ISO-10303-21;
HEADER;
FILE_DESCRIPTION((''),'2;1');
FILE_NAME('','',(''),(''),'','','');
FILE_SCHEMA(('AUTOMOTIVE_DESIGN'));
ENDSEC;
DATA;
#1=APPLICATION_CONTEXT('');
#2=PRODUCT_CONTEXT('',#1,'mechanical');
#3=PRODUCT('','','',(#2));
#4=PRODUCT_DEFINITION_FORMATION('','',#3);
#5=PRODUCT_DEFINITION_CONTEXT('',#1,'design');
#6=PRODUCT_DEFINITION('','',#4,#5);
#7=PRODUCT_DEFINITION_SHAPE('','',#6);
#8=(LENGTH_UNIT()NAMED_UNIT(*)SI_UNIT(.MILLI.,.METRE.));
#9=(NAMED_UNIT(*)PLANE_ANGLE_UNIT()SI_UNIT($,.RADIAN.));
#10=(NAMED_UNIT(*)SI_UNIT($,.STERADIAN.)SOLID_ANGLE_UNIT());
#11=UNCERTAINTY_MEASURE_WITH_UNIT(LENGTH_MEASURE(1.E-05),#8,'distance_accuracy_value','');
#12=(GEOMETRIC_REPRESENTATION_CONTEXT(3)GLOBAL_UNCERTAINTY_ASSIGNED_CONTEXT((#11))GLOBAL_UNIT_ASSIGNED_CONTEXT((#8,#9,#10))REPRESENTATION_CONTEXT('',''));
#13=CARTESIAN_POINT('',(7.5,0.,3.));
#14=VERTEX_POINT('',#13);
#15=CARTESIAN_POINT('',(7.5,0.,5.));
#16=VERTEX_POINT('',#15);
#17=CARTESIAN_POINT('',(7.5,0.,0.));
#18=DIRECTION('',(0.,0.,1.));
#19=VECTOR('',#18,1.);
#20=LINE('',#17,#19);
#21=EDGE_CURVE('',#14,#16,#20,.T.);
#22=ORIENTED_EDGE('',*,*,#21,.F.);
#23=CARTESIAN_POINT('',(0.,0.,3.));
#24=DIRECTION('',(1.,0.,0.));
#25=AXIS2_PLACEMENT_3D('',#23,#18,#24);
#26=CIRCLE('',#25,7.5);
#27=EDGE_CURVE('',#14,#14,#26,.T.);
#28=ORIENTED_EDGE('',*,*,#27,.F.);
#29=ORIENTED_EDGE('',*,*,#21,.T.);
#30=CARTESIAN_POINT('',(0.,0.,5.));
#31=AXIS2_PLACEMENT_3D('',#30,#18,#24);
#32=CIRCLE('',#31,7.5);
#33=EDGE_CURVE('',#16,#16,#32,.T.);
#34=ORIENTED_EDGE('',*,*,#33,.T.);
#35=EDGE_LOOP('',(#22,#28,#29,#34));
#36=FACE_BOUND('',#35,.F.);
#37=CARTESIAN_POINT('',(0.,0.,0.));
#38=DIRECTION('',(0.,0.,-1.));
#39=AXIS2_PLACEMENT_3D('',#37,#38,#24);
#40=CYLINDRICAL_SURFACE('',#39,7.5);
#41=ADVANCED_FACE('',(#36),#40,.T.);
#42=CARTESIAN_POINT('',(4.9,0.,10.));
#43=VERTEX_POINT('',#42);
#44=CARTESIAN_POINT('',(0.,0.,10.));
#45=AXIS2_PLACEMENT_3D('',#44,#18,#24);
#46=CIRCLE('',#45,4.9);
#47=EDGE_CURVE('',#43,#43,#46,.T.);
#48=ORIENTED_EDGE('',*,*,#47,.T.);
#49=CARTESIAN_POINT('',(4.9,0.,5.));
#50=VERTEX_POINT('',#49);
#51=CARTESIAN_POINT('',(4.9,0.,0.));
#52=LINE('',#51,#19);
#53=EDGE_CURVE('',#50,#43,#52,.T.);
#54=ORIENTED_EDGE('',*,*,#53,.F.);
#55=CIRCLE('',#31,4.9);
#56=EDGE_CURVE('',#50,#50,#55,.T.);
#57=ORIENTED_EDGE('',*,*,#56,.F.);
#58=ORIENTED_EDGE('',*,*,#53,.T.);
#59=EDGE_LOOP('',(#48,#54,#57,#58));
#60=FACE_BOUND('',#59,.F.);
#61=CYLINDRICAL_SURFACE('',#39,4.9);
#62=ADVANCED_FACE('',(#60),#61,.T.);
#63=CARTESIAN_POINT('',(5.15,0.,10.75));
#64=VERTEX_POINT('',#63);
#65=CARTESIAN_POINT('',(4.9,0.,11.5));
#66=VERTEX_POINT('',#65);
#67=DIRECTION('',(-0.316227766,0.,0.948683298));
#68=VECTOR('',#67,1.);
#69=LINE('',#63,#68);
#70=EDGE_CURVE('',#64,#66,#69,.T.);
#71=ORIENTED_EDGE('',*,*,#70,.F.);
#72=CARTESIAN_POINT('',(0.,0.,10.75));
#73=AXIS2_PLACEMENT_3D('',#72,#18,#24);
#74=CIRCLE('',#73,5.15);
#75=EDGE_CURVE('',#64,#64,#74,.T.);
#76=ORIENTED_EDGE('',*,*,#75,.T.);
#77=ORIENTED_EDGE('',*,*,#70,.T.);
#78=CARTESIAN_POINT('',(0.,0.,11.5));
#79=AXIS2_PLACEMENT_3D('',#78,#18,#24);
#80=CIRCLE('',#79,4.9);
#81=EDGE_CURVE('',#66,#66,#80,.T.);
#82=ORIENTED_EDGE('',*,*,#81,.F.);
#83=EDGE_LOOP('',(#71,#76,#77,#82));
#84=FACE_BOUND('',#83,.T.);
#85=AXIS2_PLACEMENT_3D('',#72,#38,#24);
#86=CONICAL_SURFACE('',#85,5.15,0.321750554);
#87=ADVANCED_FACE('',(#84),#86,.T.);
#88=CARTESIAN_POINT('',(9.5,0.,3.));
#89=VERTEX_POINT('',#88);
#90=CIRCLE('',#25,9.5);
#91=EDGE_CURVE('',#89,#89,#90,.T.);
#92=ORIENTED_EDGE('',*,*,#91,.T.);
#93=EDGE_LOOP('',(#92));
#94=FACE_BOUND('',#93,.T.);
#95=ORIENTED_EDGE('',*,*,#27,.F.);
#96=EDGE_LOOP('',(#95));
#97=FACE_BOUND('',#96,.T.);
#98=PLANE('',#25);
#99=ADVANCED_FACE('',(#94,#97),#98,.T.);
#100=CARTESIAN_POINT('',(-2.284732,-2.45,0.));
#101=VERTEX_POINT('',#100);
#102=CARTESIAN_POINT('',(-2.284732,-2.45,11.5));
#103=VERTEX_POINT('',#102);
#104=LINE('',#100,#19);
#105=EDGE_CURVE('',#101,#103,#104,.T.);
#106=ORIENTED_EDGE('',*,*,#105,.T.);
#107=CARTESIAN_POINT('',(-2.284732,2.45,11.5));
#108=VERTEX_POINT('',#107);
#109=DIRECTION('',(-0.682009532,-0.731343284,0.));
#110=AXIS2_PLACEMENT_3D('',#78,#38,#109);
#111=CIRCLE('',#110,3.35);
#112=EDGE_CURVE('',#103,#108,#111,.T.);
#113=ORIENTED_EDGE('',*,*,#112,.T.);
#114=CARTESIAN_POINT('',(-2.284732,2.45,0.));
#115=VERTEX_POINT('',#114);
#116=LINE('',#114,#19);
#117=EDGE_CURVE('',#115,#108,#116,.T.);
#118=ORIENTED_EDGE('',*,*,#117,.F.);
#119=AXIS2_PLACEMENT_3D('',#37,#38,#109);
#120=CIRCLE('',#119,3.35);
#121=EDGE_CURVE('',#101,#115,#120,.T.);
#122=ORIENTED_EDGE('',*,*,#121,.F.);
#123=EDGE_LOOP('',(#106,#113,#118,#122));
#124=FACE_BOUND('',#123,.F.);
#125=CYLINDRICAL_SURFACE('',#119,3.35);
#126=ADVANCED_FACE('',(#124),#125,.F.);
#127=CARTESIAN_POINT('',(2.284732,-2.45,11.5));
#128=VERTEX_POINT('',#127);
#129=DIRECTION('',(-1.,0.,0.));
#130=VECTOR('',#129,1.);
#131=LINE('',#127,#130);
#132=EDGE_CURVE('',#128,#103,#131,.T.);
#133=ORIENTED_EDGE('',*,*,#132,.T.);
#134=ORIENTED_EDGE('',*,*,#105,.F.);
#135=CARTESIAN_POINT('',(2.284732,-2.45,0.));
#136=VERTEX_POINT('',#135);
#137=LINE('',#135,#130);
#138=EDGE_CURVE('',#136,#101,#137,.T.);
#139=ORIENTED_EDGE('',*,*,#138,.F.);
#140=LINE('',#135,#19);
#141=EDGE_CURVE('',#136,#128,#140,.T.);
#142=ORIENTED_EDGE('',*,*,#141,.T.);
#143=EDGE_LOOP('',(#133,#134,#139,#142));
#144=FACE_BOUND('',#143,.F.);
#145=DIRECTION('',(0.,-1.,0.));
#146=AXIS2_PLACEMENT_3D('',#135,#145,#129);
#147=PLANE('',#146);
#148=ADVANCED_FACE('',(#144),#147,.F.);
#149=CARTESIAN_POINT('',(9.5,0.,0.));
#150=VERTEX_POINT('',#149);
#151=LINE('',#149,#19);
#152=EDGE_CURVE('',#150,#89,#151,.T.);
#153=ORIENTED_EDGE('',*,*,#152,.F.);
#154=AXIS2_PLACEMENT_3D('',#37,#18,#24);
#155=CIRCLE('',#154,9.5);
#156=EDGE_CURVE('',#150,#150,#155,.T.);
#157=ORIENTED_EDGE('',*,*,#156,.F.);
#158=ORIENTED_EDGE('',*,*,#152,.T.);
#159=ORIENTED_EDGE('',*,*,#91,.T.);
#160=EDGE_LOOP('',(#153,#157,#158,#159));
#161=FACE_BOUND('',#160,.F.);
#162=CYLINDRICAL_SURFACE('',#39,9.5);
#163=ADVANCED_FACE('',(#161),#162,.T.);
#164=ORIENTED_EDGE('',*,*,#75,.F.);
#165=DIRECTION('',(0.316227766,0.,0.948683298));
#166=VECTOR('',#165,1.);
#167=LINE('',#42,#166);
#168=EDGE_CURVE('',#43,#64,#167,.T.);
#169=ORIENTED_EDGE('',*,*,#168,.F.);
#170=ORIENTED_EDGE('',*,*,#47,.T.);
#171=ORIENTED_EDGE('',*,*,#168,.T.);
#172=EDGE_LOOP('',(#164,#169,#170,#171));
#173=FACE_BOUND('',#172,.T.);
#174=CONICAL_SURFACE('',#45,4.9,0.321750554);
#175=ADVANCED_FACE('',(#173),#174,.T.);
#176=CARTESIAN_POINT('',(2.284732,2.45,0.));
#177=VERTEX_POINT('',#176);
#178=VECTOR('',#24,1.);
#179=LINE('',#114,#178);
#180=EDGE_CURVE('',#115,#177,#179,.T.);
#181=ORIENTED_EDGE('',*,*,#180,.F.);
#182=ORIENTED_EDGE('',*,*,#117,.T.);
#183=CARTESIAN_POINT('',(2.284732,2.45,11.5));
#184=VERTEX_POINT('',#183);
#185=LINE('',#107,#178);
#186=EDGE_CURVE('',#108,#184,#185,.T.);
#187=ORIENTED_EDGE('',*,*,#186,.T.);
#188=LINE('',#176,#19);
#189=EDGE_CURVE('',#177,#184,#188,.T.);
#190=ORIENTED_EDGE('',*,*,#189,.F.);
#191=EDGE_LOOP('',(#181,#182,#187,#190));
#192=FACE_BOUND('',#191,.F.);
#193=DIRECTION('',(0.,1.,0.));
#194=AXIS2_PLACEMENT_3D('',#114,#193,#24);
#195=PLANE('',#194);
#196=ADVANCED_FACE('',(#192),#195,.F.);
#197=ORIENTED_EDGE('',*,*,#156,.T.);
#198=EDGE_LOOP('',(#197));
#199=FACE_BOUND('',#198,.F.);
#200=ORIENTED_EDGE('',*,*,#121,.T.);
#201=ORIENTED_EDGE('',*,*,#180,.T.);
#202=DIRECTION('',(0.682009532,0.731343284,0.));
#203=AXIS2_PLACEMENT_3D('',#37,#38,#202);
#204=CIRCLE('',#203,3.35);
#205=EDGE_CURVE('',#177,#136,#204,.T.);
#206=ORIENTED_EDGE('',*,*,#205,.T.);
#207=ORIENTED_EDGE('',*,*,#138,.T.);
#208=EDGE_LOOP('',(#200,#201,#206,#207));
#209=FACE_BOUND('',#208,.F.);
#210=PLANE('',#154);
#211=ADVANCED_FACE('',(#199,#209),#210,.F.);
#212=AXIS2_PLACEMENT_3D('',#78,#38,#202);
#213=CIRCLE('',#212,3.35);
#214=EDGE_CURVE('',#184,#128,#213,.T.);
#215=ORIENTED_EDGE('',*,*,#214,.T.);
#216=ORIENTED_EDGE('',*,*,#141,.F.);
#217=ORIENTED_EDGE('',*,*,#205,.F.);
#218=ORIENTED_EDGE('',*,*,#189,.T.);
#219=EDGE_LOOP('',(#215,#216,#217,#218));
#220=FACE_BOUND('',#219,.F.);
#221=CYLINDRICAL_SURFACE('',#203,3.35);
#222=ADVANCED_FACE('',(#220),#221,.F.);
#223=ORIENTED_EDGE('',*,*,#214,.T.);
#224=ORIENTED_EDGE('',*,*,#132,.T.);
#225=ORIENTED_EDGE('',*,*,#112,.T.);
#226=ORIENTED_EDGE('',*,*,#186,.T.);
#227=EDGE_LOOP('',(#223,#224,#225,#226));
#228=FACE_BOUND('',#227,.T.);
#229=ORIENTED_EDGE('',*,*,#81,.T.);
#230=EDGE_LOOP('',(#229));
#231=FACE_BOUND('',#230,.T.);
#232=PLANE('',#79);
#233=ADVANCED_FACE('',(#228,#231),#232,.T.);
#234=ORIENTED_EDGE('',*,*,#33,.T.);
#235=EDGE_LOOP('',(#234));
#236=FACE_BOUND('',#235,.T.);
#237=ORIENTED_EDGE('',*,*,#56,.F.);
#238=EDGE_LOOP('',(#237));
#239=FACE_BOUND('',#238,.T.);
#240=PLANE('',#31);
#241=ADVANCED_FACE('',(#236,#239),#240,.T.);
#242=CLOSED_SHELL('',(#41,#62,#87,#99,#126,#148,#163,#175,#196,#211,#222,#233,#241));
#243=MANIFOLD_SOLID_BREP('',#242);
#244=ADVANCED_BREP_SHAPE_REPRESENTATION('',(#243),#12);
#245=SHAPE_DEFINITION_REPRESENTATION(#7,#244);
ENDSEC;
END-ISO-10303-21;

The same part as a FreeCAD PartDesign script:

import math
import FreeCAD as App
import Part
import Sketcher
Q = App.Units.Quantity


def add_polygon(sketch, points):
    """Adds a closed chain of lines whose ends are joined by coincident constraints."""
    first, n = sketch.GeometryCount, len(points)
    for a, b in zip(points, points[1:] + points[:1]):
        sketch.addGeometry(Part.LineSegment(App.Vector(*a, 0), App.Vector(*b, 0)), False)
    for i in range(n):
        sketch.addConstraint(Sketcher.Constraint("Coincident", first + i, 2, first + (i + 1) % n, 1))

doc = App.newDocument("Part")
body = doc.addObject("PartDesign::Body", "Body")

sketch1 = body.newObject("Sketcher::SketchObject", "Sketch")
sketch1.AttachmentSupport = (doc.getObject("XY_Plane"), [""])
sketch1.MapMode = "FlatFace"
sketch1.addGeometry(Part.Circle(App.Vector(0, 0, 0), App.Vector(0, 0, 1), 10), False)
sketch1.addGeometry(Part.Circle(App.Vector(0, 0, 0), App.Vector(0, 0, 1), 8), False)
sketch1.addConstraint(Sketcher.Constraint("Coincident", 0, 3, -1, 1))
sketch1.addConstraint(Sketcher.Constraint("Coincident", 1, 3, -1, 1))
sketch1.addConstraint(Sketcher.Constraint("Diameter", 0, Q("19 mm")))
sketch1.addConstraint(Sketcher.Constraint("Diameter", 1, Q("15 mm")))
pad1 = body.newObject("PartDesign::Pad", "Pad")
pad1.Profile = sketch1
pad1.Length = 3

sketch2 = body.newObject("Sketcher::SketchObject", "Sketch001")
sketch2.AttachmentSupport = (doc.getObject("XY_Plane"), [""])
sketch2.MapMode = "FlatFace"
sketch2.addGeometry(Part.Circle(App.Vector(0, 0, 0), App.Vector(0, 0, 1), 7.5), False)
sketch2.addGeometry(Part.Circle(App.Vector(0, 0, 0), App.Vector(0, 0, 1), 4.9), False)
sketch2.addConstraint(Sketcher.Constraint("Coincident", 0, 3, -1, 1))
sketch2.addConstraint(Sketcher.Constraint("Coincident", 1, 3, -1, 1))
sketch2.addConstraint(Sketcher.Constraint("Diameter", 0, Q("15 mm")))
sketch2.addConstraint(Sketcher.Constraint("Diameter", 1, Q("9.8 mm")))
pad2 = body.newObject("PartDesign::Pad", "Pad001")
pad2.Profile = sketch2
pad2.Length = 5

sketch3 = body.newObject("Sketcher::SketchObject", "Sketch002")
sketch3.AttachmentSupport = (doc.getObject("XY_Plane"), [""])
sketch3.MapMode = "FlatFace"
sketch3.addGeometry(Part.Circle(App.Vector(0, 0, 0), App.Vector(0, 0, 1), 4.9), False)
sketch3.addGeometry(Part.LineSegment(App.Vector(2.3, -2.5, 0), App.Vector(-2.3, -2.5, 0)), False)
sketch3.addGeometry(Part.ArcOfCircle(Part.Circle(App.Vector(0, 0, 0), App.Vector(0, 0, 1), 3.4), math.radians(133), math.radians(227)), False)
sketch3.addGeometry(Part.LineSegment(App.Vector(-2.3, 2.5, 0), App.Vector(2.3, 2.5, 0)), False)
sketch3.addGeometry(Part.ArcOfCircle(Part.Circle(App.Vector(0, 0, 0), App.Vector(0, 0, 1), 3.4), math.radians(-47), math.radians(47)), False)
sketch3.addConstraint(Sketcher.Constraint("Coincident", 1, 2, 2, 2))
sketch3.addConstraint(Sketcher.Constraint("Coincident", 2, 1, 3, 1))
sketch3.addConstraint(Sketcher.Constraint("Coincident", 3, 2, 4, 2))
sketch3.addConstraint(Sketcher.Constraint("Coincident", 4, 1, 1, 1))
sketch3.addConstraint(Sketcher.Constraint("Horizontal", 1))
sketch3.addConstraint(Sketcher.Constraint("Horizontal", 3))
sketch3.addConstraint(Sketcher.Constraint("Coincident", 0, 3, -1, 1))
sketch3.addConstraint(Sketcher.Constraint("Coincident", 2, 3, -1, 1))
sketch3.addConstraint(Sketcher.Constraint("Coincident", 4, 3, -1, 1))
sketch3.addConstraint(Sketcher.Constraint("Equal", 2, 4))
sketch3.addConstraint(Sketcher.Constraint("Vertical", 1, 2, 2, 1))
sketch3.addConstraint(Sketcher.Constraint("Diameter", 0, Q("9.8 mm")))
sketch3.addConstraint(Sketcher.Constraint("Radius", 2, Q("3.35 mm")))
sketch3.addConstraint(Sketcher.Constraint("DistanceY", 1, 2, 2, 1, Q("4.9 mm")))
pad3 = body.newObject("PartDesign::Pad", "Pad002")
pad3.Profile = sketch3
pad3.Length = 11.5

sketch4 = body.newObject("Sketcher::SketchObject", "Sketch003")
sketch4.AttachmentSupport = (doc.getObject("XZ_Plane"), [""])
sketch4.MapMode = "FlatFace"
add_polygon(sketch4, [(5.2, 10.8), (4.9, 11.5), (4.9, 10)])
sketch4.addConstraint(Sketcher.Constraint("Vertical", 1))
sketch4.addConstraint(Sketcher.Constraint("Equal", 0, 2))
sketch4.addConstraint(Sketcher.Constraint("DistanceY", 1, 2, 1, 1, Q("1.5 mm")))
sketch4.addConstraint(Sketcher.Constraint("DistanceY", -1, 1, 1, 2, Q("10 mm")))
sketch4.addConstraint(Sketcher.Constraint("DistanceX", -1, 1, 0, 2, Q("4.9 mm")))
sketch4.addConstraint(Sketcher.Constraint("DistanceX", -1, 1, 2, 2, Q("5.15 mm")))
revolution = body.newObject("PartDesign::Revolution", "Revolution")
revolution.Profile = sketch4
revolution.ReferenceAxis = (sketch4, ["V_Axis"])
revolution.Angle = 360

doc.recompute()
